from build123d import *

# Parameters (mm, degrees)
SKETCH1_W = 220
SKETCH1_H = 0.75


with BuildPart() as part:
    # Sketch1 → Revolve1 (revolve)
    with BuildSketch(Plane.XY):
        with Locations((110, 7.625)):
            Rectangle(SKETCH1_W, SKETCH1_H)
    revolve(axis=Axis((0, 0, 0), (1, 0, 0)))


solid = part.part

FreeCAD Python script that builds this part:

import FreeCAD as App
import Part
import Sketcher
from FreeCAD import Vector
Q = App.Units.Quantity


def add_polygon(sketch, points):
    """Adds a closed chain of lines whose ends are joined by coincident constraints."""
    first, n = sketch.GeometryCount, len(points)
    for a, b in zip(points, points[1:] + points[:1]):
        sketch.addGeometry(Part.LineSegment(App.Vector(*a, 0), App.Vector(*b, 0)), False)
    for i in range(n):
        sketch.addConstraint(Sketcher.Constraint("Coincident", first + i, 2, first + (i + 1) % n, 1))

doc = App.newDocument("Part")
params = doc.addObject("Spreadsheet::Sheet", "Params")
for row, (alias, value) in enumerate([
    ("sketch1_width", "220 mm"),
    ("sketch1_height", "0.75 mm"),
    ("revolution_angle", "360 deg"),
], start=1):
    params.set(f"A{row}", alias)
    params.set(f"B{row}", "=" + value)
    params.setAlias(f"B{row}", alias)

body = doc.addObject("PartDesign::Body", "Body")

# Sketch on XY plane
sketch1 = body.newObject("Sketcher::SketchObject", "Sketch")
sketch1.AttachmentSupport = (doc.getObject("XY_Plane"), [""])
sketch1.MapMode = "FlatFace"
add_polygon(sketch1, [(0, 8), (0, 7.2), (220, 7.2), (220, 8)])  # lines 0-3
sketch1.addConstraint(Sketcher.Constraint("Vertical", 0))
sketch1.addConstraint(Sketcher.Constraint("Horizontal", 1))
sketch1.addConstraint(Sketcher.Constraint("Vertical", 2))
sketch1.addConstraint(Sketcher.Constraint("Horizontal", 3))
sketch1.addConstraint(Sketcher.Constraint("PointOnObject", 0, 2, -2))
sketch1.addConstraint(Sketcher.Constraint("DistanceX", 1, 1, 1, 2, Q("220 mm")))
sketch1.addConstraint(Sketcher.Constraint("DistanceY", -1, 1, 2, 2, Q("8 mm")))
sketch1.addConstraint(Sketcher.Constraint("DistanceY", 0, 2, 0, 1, Q("0.75 mm")))
sketch1.setExpression("Constraints[9]", "Params.sketch1_width")
sketch1.setExpression("Constraints[11]", "Params.sketch1_height")
revolution = body.newObject("PartDesign::Revolution", "Revolution")
revolution.Profile = sketch1
revolution.ReferenceAxis = (sketch1, ["H_Axis"])
revolution.setExpression("Angle", "Params.revolution_angle")

doc.recompute()
